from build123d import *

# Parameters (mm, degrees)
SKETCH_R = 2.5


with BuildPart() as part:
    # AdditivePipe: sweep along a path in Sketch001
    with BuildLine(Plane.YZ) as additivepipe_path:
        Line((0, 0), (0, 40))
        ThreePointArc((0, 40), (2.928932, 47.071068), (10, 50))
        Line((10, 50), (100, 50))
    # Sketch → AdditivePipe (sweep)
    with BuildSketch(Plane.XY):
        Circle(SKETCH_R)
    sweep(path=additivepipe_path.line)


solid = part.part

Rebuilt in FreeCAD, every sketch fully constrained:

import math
import FreeCAD as App
import Part
import Sketcher
from FreeCAD import Vector

doc = App.newDocument("Part")
params = doc.addObject("Spreadsheet::Sheet", "Params")
for row, (alias, value) in enumerate([
    ("sketch1_diameter", "5 mm"),
    ("sketch2_radius", "9.999999 mm"),
    ("sketch2_width", "90 mm"),
    ("sketch2_height", "40 mm"),
], start=1):
    params.set(f"A{row}", alias)
    params.set(f"B{row}", "=" + value)
    params.setAlias(f"B{row}", alias)

body = doc.addObject("PartDesign::Body", "Body")

# Sketch on XY plane
sketch1 = doc.addObject("Sketcher::SketchObject", "Sketch")
body.addObject(sketch1)
sketch1.AttachmentSupport = (doc.XY_Plane, [""])
sketch1.MapMode = "FlatFace"
sketch1.addGeometry(Part.Circle(Vector(0, 0, 0), Vector(0, 0, 1), 2.5), False)
sketch1.addConstraint([
    Sketcher.Constraint("Coincident", 0, 3, -1, 1),
    Sketcher.Constraint("Diameter", 0, 5.0),
])
sketch1.setExpression("Constraints[1]", "Params.sketch1_diameter")

# Sketch on YZ plane
sketch2 = doc.addObject("Sketcher::SketchObject", "Sketch001")
body.addObject(sketch2)
sketch2.AttachmentSupport = (doc.YZ_Plane, [""])
sketch2.MapMode = "FlatFace"
sketch2.addGeometry([
    Part.LineSegment(Vector(0, 0, 0), Vector(0, 40, 0)),
    Part.ArcOfCircle(Part.Circle(Vector(10, 40, 0), Vector(0, 0, 1), 10), math.radians(90), math.radians(180)),
    Part.LineSegment(Vector(10, 50, 0), Vector(100, 50, 0)),
], False)
sketch2.addConstraint([
    Sketcher.Constraint("Tangent", 0, 2, 1, 2),
    Sketcher.Constraint("Tangent", 1, 1, 2, 1),
    Sketcher.Constraint("Vertical", 0),
    Sketcher.Constraint("Horizontal", 2),
    Sketcher.Constraint("Coincident", 0, 1, -1, 1),
    Sketcher.Constraint("Radius", 1, 9.999999),
    Sketcher.Constraint("DistanceX", 2, 1, 2, 2, 90.0),
    Sketcher.Constraint("DistanceY", 0, 1, 0, 2, 40.0),
])
sketch2.setExpression("Constraints[5]", "Params.sketch2_radius")
sketch2.setExpression("Constraints[6]", "Params.sketch2_width")
sketch2.setExpression("Constraints[7]", "Params.sketch2_height")
doc.recompute()

additivepipe = doc.addObject("PartDesign::AdditivePipe", "AdditivePipe")
body.addObject(additivepipe)
additivepipe.Profile = sketch1
additivepipe.Spine = (sketch2, ["Edge1", "Edge2", "Edge3"])

doc.recompute()
